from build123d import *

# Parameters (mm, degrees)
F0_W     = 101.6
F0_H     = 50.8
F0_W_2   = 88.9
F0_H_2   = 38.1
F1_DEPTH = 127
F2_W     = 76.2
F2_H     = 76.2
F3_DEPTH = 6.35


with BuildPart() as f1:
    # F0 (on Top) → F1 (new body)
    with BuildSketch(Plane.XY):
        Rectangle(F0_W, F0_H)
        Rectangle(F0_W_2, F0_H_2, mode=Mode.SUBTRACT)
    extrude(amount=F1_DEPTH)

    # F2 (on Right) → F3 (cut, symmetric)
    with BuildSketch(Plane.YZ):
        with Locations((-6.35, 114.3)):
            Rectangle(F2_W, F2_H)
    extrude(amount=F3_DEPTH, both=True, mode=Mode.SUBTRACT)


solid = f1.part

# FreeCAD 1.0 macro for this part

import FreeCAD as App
import Part
import Sketcher
from FreeCAD import Vector
Q = App.Units.Quantity

doc = App.newDocument("Part")
params = doc.addObject("Spreadsheet::Sheet", "Params")
for row, (alias, value) in enumerate([
    ("sketch1_width", "4 in"),
    ("sketch1_height", "2 in"),
    ("sketch1_width2", "3.5 in"),
    ("sketch1_height2", "1.5 in"),
    ("pad1_length", "5 in"),
    ("sketch2_width", "3 in"),
    ("pocket1_length", "0.5 in"),
], start=1):
    params.set(f"A{row}", alias)
    params.set(f"B{row}", "=" + value)
    params.setAlias(f"B{row}", alias)

body = doc.addObject("PartDesign::Body", "Body")

sketch1 = body.newObject("Sketcher::SketchObject", "Sketch")
sketch1.AttachmentSupport = (doc.getObject("XY_Plane"), [""])
sketch1.MapMode = "FlatFace"
sketch1.addGeometry(Part.LineSegment(Vector(-50.8, 25.4, 0), Vector(-50.8, -25.4, 0)), False)
sketch1.addGeometry(Part.LineSegment(Vector(-50.8, -25.4, 0), Vector(50.8, -25.4, 0)), False)
sketch1.addGeometry(Part.LineSegment(Vector(50.8, -25.4, 0), Vector(50.8, 25.4, 0)), False)
sketch1.addGeometry(Part.LineSegment(Vector(50.8, 25.4, 0), Vector(-50.8, 25.4, 0)), False)
sketch1.addGeometry(Part.LineSegment(Vector(44.45, -19.05, 0), Vector(-44.45, -19.05, 0)), False)
sketch1.addGeometry(Part.LineSegment(Vector(-44.45, -19.05, 0), Vector(-44.45, 19.05, 0)), False)
sketch1.addGeometry(Part.LineSegment(Vector(-44.45, 19.05, 0), Vector(44.45, 19.05, 0)), False)
sketch1.addGeometry(Part.LineSegment(Vector(44.45, 19.05, 0), Vector(44.45, -19.05, 0)), False)
sketch1.addConstraint(Sketcher.Constraint("Coincident", 0, 2, 1, 1))
sketch1.addConstraint(Sketcher.Constraint("Coincident", 1, 2, 2, 1))
sketch1.addConstraint(Sketcher.Constraint("Coincident", 2, 2, 3, 1))
sketch1.addConstraint(Sketcher.Constraint("Coincident", 3, 2, 0, 1))
sketch1.addConstraint(Sketcher.Constraint("Coincident", 4, 2, 5, 1))
sketch1.addConstraint(Sketcher.Constraint("Coincident", 5, 2, 6, 1))
sketch1.addConstraint(Sketcher.Constraint("Coincident", 6, 2, 7, 1))
sketch1.addConstraint(Sketcher.Constraint("Coincident", 7, 2, 4, 1))
sketch1.addConstraint(Sketcher.Constraint("Vertical", 0))
sketch1.addConstraint(Sketcher.Constraint("Horizontal", 1))
sketch1.addConstraint(Sketcher.Constraint("Vertical", 2))
sketch1.addConstraint(Sketcher.Constraint("Horizontal", 3))
sketch1.addConstraint(Sketcher.Constraint("Horizontal", 4))
sketch1.addConstraint(Sketcher.Constraint("Vertical", 5))
sketch1.addConstraint(Sketcher.Constraint("Horizontal", 6))
sketch1.addConstraint(Sketcher.Constraint("Vertical", 7))
sketch1.addConstraint(Sketcher.Constraint("Symmetric", 0, 2, 2, 2, -1, 1))
sketch1.addConstraint(Sketcher.Constraint("Symmetric", 4, 2, 6, 2, -1, 1))
sketch1.addConstraint(Sketcher.Constraint("DistanceX", 1, 1, 1, 2, Q("4 in")))
sketch1.addConstraint(Sketcher.Constraint("DistanceY", 0, 2, 0, 1, Q("2 in")))
sketch1.addConstraint(Sketcher.Constraint("DistanceX", 4, 2, 4, 1, Q("3.5 in")))
sketch1.addConstraint(Sketcher.Constraint("DistanceY", 5, 1, 5, 2, Q("1.5 in")))
sketch1.setExpression("Constraints[18]", "Params.sketch1_width")
sketch1.setExpression("Constraints[19]", "Params.sketch1_height")
sketch1.setExpression("Constraints[20]", "Params.sketch1_width2")
sketch1.setExpression("Constraints[21]", "Params.sketch1_height2")
pad1 = body.newObject("PartDesign::Pad", "Pad")
pad1.Profile = sketch1
pad1.setExpression("Length", "Params.pad1_length")

sketch2 = body.newObject("Sketcher::SketchObject", "Sketch001")
sketch2.AttachmentSupport = (doc.getObject("YZ_Plane"), [""])
sketch2.MapMode = "FlatFace"
sketch2.addGeometry(Part.LineSegment(Vector(-44.45, 152.4, 0), Vector(-44.45, 76.2, 0)), False)
sketch2.addGeometry(Part.LineSegment(Vector(-44.45, 76.2, 0), Vector(31.75, 76.2, 0)), False)
sketch2.addGeometry(Part.LineSegment(Vector(31.75, 76.2, 0), Vector(31.75, 152.4, 0)), False)
sketch2.addGeometry(Part.LineSegment(Vector(31.75, 152.4, 0), Vector(-44.45, 152.4, 0)), False)
sketch2.addConstraint(Sketcher.Constraint("Coincident", 0, 2, 1, 1))
sketch2.addConstraint(Sketcher.Constraint("Coincident", 1, 2, 2, 1))
sketch2.addConstraint(Sketcher.Constraint("Coincident", 2, 2, 3, 1))
sketch2.addConstraint(Sketcher.Constraint("Coincident", 3, 2, 0, 1))
sketch2.addConstraint(Sketcher.Constraint("Vertical", 0))
sketch2.addConstraint(Sketcher.Constraint("Horizontal", 1))
sketch2.addConstraint(Sketcher.Constraint("Vertical", 2))
sketch2.addConstraint(Sketcher.Constraint("Horizontal", 3))
sketch2.addConstraint(Sketcher.Constraint("Equal", 3, 0))
sketch2.addConstraint(Sketcher.Constraint("DistanceX", 1, 1, 1, 2, Q("3 in")))
sketch2.addConstraint(Sketcher.Constraint("DistanceY", -1, 1, 0, 2, Q("3 in")))
sketch2.addConstraint(Sketcher.Constraint("DistanceX", 0, 2, -1, 1, Q("1.75 in")))
sketch2.setExpression("Constraints[9]", "Params.sketch2_width")
pocket1 = body.newObject("PartDesign::Pocket", "Pocket")
pocket1.Profile = sketch2
pocket1.setExpression("Length", "Params.pocket1_length")
pocket1.Midplane = True

doc.recompute()
